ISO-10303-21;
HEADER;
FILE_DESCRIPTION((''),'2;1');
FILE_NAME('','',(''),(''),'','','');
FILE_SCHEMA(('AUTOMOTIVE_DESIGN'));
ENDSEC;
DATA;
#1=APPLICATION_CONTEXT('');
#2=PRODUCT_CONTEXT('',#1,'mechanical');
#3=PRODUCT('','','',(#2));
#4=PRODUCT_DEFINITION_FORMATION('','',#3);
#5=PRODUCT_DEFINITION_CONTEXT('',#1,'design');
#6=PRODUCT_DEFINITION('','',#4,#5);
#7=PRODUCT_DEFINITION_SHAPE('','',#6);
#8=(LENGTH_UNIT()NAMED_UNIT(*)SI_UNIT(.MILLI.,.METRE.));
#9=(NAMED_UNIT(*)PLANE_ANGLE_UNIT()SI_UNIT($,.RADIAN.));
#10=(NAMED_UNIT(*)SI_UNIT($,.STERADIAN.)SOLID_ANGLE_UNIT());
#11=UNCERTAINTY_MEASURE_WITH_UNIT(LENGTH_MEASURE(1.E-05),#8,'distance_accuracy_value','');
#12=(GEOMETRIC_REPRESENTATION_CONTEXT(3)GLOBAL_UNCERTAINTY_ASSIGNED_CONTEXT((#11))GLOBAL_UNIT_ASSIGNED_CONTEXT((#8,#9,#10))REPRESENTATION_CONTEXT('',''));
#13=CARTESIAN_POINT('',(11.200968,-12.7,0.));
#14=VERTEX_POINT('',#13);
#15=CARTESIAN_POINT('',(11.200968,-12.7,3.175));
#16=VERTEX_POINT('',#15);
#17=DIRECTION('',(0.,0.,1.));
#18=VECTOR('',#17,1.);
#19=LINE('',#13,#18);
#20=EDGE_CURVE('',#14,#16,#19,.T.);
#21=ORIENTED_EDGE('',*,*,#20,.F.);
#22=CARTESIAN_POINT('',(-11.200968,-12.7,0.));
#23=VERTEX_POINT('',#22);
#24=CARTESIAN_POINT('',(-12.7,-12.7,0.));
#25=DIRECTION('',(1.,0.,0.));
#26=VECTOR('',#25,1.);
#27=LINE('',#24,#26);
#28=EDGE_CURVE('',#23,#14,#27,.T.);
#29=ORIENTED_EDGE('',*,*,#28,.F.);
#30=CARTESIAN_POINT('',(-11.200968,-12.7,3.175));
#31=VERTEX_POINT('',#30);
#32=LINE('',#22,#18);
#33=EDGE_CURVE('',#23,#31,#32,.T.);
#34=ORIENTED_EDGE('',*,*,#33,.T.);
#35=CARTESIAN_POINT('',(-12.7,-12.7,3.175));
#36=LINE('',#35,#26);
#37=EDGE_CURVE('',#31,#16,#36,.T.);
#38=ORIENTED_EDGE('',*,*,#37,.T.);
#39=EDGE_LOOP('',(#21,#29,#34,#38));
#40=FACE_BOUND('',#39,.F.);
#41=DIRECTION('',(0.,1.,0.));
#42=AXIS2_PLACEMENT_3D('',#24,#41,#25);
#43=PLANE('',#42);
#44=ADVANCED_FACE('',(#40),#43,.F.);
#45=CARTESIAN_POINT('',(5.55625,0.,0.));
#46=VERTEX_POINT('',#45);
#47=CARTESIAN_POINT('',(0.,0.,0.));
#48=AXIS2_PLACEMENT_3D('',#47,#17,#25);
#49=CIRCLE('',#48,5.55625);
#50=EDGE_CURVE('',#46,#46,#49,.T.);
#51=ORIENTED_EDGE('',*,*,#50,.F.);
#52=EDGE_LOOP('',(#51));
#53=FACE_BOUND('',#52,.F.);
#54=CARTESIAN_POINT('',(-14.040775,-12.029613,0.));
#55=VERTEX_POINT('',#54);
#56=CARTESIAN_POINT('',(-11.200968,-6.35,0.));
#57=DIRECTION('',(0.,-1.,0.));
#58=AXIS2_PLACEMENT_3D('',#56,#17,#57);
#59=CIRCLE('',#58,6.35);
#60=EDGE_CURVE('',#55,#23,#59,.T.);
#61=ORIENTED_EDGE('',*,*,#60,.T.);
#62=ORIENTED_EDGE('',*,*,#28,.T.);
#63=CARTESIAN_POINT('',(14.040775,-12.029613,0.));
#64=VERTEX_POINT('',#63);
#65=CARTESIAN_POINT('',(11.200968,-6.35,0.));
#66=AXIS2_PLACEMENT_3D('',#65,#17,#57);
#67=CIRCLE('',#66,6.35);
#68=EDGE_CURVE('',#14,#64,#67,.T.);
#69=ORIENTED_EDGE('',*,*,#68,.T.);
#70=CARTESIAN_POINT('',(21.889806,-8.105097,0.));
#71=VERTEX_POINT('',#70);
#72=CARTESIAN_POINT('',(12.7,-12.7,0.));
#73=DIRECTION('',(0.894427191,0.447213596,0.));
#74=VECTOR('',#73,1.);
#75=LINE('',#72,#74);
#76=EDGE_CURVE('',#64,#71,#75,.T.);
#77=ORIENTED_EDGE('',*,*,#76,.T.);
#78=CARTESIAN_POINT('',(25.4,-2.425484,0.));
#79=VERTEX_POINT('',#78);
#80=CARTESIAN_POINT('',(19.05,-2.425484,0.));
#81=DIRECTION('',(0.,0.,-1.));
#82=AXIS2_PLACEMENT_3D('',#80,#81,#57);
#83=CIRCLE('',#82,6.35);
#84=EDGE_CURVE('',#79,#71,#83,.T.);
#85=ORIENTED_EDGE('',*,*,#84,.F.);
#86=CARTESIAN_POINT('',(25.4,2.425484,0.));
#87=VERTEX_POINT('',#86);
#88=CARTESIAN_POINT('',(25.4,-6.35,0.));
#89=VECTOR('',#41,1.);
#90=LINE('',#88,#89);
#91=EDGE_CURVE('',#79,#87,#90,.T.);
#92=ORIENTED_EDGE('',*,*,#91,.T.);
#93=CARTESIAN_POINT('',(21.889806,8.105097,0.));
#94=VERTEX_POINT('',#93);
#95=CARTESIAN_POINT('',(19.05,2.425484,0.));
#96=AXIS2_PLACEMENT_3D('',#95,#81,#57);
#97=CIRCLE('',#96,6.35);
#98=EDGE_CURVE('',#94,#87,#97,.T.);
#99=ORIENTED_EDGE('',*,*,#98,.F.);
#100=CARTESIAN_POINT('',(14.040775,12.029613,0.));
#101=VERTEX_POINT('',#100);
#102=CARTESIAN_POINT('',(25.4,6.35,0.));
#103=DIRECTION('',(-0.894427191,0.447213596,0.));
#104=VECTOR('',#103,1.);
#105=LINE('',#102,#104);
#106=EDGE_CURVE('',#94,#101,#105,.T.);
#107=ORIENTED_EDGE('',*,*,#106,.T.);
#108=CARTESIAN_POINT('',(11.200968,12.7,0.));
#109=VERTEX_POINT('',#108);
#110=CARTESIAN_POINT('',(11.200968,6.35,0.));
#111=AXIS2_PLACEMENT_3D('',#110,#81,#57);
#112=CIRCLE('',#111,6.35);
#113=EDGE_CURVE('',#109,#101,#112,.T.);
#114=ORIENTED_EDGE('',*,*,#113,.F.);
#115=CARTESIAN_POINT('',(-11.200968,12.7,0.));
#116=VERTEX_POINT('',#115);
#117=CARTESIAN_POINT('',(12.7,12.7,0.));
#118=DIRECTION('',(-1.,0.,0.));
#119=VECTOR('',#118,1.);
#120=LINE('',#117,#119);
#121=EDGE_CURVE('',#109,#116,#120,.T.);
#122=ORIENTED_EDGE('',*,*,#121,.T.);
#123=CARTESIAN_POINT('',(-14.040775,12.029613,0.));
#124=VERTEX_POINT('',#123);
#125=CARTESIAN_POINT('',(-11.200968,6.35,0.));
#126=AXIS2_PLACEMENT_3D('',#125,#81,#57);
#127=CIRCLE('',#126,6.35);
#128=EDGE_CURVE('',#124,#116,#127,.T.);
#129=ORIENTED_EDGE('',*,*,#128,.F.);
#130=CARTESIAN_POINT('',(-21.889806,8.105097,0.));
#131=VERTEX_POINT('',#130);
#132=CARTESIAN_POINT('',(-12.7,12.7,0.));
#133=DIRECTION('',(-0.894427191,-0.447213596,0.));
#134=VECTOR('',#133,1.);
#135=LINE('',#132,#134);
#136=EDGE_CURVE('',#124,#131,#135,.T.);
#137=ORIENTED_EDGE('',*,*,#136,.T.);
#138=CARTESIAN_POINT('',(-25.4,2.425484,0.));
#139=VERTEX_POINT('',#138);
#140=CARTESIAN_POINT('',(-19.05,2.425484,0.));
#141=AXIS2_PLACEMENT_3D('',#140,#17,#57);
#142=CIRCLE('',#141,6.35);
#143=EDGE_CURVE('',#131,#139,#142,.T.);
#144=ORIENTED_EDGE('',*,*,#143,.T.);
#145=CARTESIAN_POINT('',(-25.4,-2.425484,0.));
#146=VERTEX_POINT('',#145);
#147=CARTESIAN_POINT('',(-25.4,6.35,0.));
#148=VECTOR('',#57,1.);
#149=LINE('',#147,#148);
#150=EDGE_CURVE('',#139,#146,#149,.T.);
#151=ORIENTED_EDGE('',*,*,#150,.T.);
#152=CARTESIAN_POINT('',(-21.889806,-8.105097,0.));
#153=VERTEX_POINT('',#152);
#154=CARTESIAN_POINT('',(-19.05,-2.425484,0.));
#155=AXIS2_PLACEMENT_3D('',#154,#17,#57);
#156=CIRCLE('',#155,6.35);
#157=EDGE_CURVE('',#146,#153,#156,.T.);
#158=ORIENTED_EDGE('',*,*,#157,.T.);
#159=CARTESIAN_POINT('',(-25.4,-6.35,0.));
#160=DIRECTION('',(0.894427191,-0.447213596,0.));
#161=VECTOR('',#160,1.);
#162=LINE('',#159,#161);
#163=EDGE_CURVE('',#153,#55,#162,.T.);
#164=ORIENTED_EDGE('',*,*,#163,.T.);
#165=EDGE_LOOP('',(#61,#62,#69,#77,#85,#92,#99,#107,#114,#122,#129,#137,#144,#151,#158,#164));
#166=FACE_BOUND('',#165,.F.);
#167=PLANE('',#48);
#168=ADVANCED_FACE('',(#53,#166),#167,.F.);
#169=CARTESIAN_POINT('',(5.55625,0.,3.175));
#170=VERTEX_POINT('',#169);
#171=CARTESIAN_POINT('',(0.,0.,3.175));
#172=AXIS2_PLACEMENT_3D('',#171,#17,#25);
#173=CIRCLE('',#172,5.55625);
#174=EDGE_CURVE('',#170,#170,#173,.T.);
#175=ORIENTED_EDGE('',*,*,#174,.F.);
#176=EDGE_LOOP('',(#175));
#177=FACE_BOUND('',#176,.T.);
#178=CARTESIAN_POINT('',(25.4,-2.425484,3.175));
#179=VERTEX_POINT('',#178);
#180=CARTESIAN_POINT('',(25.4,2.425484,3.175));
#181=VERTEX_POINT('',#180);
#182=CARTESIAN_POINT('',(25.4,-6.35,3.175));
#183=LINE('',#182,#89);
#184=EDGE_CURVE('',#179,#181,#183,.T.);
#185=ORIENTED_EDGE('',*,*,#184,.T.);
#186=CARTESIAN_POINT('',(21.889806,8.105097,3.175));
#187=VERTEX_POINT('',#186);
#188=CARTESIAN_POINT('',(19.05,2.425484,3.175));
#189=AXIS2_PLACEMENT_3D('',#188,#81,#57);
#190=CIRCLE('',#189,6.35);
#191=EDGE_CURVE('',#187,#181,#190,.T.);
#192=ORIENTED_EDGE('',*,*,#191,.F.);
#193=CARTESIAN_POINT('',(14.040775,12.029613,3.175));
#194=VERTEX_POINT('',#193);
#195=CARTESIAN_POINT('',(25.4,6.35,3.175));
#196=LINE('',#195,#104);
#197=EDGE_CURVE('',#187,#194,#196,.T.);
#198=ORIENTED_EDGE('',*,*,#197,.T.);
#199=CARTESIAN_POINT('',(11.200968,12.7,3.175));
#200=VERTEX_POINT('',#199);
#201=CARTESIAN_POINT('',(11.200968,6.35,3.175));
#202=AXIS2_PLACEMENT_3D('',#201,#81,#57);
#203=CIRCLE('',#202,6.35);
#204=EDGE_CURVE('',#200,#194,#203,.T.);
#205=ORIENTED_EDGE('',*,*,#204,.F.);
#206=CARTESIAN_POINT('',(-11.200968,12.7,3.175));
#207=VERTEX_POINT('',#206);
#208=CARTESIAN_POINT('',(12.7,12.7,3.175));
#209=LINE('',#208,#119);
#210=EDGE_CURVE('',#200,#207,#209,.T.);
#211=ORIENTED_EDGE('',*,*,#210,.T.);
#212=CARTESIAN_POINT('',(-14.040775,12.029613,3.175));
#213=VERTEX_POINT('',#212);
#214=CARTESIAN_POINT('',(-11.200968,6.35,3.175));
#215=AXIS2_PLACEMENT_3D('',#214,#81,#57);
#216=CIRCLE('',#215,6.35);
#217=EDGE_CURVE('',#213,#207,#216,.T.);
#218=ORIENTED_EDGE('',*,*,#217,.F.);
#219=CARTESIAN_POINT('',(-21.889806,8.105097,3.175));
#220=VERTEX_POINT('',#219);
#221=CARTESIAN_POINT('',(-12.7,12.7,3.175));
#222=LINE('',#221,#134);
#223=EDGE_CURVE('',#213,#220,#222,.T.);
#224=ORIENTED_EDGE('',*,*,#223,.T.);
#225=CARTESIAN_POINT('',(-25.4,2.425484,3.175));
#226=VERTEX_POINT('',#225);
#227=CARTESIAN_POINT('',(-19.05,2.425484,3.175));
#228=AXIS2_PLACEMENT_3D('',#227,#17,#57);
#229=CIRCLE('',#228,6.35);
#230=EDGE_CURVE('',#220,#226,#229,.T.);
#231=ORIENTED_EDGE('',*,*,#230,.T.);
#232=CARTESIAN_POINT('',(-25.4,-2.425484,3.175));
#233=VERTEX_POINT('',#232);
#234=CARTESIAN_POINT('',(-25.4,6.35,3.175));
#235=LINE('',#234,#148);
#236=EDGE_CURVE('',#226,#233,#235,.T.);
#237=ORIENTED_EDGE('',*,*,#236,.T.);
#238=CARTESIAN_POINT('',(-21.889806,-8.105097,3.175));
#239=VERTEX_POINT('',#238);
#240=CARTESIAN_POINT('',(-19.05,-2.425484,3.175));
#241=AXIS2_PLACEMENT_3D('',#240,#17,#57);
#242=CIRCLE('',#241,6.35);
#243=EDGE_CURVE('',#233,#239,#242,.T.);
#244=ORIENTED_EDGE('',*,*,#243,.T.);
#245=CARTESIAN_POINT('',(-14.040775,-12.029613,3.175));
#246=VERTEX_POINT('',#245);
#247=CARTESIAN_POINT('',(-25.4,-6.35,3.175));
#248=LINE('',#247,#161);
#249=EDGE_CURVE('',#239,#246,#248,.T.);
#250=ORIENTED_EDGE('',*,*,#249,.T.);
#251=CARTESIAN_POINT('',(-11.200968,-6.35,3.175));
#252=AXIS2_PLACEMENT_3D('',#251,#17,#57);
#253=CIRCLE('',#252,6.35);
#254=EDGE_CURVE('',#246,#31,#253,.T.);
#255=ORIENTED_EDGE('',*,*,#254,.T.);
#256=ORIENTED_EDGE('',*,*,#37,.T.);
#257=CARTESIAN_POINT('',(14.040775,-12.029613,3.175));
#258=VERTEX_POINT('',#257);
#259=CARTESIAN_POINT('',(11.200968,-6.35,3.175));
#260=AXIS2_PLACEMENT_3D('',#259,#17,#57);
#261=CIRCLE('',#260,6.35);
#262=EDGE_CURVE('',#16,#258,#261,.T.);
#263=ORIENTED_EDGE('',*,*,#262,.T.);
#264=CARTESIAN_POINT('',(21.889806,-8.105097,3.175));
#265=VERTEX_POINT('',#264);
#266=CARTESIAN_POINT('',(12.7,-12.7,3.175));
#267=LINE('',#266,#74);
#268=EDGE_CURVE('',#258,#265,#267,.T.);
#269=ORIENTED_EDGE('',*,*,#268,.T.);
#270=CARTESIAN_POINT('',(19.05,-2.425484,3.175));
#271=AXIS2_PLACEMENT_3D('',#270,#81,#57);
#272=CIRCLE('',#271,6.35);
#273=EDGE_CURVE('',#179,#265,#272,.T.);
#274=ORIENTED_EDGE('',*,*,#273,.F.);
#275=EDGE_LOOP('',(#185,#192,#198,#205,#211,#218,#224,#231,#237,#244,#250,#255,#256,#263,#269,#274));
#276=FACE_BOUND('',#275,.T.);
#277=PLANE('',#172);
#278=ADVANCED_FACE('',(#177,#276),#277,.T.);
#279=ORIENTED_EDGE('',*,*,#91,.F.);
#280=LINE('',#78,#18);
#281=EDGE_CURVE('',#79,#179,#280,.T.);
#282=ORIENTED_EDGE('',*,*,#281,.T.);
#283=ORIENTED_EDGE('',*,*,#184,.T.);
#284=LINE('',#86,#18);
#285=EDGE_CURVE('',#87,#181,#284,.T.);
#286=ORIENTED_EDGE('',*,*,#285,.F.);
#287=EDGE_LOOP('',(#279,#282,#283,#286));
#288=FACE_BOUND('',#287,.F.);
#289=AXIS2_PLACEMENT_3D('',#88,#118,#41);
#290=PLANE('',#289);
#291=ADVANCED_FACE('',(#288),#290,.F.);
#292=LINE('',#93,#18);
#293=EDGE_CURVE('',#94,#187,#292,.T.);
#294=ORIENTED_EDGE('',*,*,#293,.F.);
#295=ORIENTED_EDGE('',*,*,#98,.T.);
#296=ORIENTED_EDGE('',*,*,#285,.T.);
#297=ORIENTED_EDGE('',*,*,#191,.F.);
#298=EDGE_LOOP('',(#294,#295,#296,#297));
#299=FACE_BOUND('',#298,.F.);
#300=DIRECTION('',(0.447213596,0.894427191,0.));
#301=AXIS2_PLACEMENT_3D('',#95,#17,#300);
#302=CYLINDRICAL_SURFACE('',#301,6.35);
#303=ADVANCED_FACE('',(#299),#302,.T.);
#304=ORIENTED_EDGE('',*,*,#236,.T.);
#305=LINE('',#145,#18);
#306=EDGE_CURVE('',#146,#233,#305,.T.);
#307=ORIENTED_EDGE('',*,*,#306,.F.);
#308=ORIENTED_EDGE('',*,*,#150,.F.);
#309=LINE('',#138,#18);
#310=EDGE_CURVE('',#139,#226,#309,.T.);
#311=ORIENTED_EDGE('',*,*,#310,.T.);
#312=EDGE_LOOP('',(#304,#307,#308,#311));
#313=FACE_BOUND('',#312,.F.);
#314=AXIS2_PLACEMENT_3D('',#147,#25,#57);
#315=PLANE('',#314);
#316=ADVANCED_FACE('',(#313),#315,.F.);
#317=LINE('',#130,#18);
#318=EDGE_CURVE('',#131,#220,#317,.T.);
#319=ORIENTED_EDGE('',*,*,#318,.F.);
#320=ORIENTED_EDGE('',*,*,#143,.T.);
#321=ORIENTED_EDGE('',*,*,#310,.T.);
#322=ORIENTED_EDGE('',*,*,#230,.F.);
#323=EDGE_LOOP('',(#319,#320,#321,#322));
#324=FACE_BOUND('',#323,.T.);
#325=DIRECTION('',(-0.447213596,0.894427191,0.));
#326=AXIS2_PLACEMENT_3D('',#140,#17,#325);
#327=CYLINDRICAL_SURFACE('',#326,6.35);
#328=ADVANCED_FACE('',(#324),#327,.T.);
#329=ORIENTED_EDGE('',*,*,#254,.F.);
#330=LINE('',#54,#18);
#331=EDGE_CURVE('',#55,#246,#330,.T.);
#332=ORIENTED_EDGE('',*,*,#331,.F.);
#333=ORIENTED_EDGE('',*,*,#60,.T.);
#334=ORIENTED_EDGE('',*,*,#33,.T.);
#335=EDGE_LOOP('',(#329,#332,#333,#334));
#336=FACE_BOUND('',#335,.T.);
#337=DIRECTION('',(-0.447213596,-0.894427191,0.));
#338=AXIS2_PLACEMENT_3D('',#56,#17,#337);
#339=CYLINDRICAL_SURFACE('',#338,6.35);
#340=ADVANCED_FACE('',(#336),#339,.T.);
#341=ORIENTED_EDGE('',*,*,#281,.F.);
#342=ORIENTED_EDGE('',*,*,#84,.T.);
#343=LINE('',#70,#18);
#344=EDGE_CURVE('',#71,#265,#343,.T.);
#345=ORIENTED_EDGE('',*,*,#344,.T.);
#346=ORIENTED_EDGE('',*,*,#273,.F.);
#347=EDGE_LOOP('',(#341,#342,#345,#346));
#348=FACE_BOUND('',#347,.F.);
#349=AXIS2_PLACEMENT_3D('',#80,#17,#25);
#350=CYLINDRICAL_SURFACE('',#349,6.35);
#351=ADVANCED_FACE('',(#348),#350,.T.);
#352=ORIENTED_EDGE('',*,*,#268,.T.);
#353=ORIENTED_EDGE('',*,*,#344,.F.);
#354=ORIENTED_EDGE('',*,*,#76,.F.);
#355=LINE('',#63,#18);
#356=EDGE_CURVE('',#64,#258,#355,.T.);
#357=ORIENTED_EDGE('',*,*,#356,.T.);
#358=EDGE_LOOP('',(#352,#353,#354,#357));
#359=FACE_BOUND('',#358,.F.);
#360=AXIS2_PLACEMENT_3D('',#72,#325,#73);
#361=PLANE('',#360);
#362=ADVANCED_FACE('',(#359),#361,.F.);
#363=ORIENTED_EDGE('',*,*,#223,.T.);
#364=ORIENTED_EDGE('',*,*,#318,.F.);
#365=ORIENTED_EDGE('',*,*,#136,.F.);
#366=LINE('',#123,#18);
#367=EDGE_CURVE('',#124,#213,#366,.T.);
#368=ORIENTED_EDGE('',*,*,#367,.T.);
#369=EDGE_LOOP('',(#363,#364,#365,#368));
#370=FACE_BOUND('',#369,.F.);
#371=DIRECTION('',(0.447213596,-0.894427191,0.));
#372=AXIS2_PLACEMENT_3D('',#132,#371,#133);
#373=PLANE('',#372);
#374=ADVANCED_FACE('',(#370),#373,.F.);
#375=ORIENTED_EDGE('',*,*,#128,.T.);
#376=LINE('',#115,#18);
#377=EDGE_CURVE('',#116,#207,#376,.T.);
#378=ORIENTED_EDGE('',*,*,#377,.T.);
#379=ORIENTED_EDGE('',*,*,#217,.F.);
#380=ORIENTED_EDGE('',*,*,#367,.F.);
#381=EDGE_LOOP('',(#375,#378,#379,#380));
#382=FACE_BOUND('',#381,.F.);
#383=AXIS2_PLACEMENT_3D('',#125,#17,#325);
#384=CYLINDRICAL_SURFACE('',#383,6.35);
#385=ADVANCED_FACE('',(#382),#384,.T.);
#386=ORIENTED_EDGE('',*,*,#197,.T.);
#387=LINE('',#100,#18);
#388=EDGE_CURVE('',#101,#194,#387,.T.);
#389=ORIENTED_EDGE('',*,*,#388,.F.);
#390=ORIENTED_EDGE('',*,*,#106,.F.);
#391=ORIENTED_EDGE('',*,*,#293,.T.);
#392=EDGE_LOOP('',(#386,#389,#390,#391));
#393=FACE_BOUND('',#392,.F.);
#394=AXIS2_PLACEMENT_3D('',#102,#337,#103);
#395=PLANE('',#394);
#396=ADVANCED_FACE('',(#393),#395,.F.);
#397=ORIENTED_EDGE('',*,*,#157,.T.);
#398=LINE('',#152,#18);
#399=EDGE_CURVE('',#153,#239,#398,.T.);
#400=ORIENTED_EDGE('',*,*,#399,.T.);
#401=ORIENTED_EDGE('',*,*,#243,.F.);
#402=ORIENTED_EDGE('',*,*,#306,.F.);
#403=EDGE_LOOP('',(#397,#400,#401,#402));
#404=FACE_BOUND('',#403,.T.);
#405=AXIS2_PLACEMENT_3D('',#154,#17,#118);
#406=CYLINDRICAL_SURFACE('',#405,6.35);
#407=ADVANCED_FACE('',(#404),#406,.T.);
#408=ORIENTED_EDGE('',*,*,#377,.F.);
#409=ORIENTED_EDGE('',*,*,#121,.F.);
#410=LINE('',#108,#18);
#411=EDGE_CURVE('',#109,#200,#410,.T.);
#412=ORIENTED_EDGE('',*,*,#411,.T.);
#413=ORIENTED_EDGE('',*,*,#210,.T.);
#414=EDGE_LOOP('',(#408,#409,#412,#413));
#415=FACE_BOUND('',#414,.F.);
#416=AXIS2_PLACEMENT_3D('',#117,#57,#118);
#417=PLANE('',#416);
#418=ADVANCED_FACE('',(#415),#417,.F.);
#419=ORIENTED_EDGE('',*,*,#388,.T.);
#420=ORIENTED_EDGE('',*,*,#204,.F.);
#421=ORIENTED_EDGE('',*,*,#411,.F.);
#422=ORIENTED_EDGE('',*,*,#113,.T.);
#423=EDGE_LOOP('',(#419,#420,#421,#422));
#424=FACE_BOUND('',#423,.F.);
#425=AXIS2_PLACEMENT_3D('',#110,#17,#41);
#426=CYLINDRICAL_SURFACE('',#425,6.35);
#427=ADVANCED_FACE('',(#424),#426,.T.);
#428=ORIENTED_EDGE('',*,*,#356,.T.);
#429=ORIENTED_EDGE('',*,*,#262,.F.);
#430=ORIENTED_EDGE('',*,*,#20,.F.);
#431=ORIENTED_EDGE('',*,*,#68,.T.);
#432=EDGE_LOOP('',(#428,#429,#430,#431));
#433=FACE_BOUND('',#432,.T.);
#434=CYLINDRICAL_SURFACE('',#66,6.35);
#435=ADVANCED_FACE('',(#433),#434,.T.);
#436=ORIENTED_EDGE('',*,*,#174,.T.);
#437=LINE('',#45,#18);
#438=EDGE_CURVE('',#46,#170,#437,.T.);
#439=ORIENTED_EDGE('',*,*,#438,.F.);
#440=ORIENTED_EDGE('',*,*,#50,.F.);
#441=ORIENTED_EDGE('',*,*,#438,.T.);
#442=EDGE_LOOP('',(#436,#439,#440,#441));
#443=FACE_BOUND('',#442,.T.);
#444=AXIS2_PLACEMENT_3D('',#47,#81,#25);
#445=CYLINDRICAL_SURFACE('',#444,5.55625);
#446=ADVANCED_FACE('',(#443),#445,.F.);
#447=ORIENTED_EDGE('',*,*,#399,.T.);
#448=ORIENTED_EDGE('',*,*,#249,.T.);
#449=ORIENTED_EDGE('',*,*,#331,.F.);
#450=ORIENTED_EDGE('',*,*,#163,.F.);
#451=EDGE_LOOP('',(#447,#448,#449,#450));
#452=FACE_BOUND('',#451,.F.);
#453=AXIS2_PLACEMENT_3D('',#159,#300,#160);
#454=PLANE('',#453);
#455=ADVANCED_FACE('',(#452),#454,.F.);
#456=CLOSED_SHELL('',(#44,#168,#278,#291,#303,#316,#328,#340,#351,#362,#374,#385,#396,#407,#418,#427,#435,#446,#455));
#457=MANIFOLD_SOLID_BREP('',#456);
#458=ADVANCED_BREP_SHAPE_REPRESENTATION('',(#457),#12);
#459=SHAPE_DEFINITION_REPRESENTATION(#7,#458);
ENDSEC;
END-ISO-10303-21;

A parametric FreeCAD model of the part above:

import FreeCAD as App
import Part
import Sketcher
Q = App.Units.Quantity


def edges_at(feature, points):
    """Names of the edges that pass closest to the given points."""
    edges = feature.Shape.Edges
    near = lambda p: min(range(len(edges)), key=lambda i: edges[i].distToShape(Part.Vertex(*p))[0])
    return sorted({f"Edge{near(p) + 1}" for p in points})

doc = App.newDocument("Part")
body = doc.addObject("PartDesign::Body", "Body")

# Sketch on XY plane
sketch1 = body.newObject("Sketcher::SketchObject", "Sketch")
sketch1.AttachmentSupport = (doc.getObject("XY_Plane"), [""])
sketch1.MapMode = "FlatFace"
sketch1.addGeometry([
    Part.LineSegment(App.Vector(-13, 13, 0), App.Vector(-25, 6, 0)),  # 0
    Part.LineSegment(App.Vector(-25, 6, 0), App.Vector(-25, -6, 0)),  # 1
    Part.LineSegment(App.Vector(-25, -6, 0), App.Vector(-13, -13, 0)),  # 2
    Part.LineSegment(App.Vector(-13, -13, 0), App.Vector(13, -13, 0)),  # 3
    Part.LineSegment(App.Vector(13, -13, 0), App.Vector(25, -6, 0)),  # 4
    Part.LineSegment(App.Vector(25, -6, 0), App.Vector(25, 6, 0)),  # 5
    Part.LineSegment(App.Vector(25, 6, 0), App.Vector(13, 13, 0)),  # 6
    Part.LineSegment(App.Vector(13, 13, 0), App.Vector(-13, 13, 0)),  # 7
    Part.Circle(App.Vector(0, 0, 0), App.Vector(0, 0, 1), 6),  # 8
], False)
sketch1.addConstraint([
    Sketcher.Constraint("Coincident", 0, 2, 1, 1),
    Sketcher.Constraint("Coincident", 1, 2, 2, 1),
    Sketcher.Constraint("Coincident", 2, 2, 3, 1),
    Sketcher.Constraint("Coincident", 3, 2, 4, 1),
    Sketcher.Constraint("Coincident", 4, 2, 5, 1),
    Sketcher.Constraint("Coincident", 5, 2, 6, 1),
    Sketcher.Constraint("Coincident", 6, 2, 7, 1),
    Sketcher.Constraint("Coincident", 7, 2, 0, 1),
    Sketcher.Constraint("Vertical", 1),
    Sketcher.Constraint("Horizontal", 3),
    Sketcher.Constraint("Vertical", 5),
    Sketcher.Constraint("Horizontal", 7),
    Sketcher.Constraint("Coincident", 8, 3, -1, 1),
    Sketcher.Constraint("Symmetric", 0, 2, 4, 2, -1, 1),
    Sketcher.Constraint("Symmetric", 2, 2, 6, 2, -1, 1),
    Sketcher.Constraint("Parallel", 0, 4),
    Sketcher.Constraint("Parallel", 2, 6),
    Sketcher.Constraint("Horizontal", 1, 2, 4, 2),
    Sketcher.Constraint("Vertical", 3, 2, 6, 2),
    Sketcher.Constraint("DistanceX", 3, 1, 3, 2, Q("1 in")),
    Sketcher.Constraint("Diameter", 8, Q("0.4375 in")),
    Sketcher.Constraint("DistanceY", 1, 2, 1, 1, Q("0.5 in")),
    Sketcher.Constraint("DistanceX", 0, 2, -1, 1, Q("1 in")),
    Sketcher.Constraint("DistanceY", 3, 2, 6, 2, Q("1 in")),
])
pad1 = body.newObject("PartDesign::Pad", "Pad")
pad1.Profile = sketch1
pad1.Length = Q("0.125 in")
doc.recompute()

fillet = body.newObject("PartDesign::Fillet", "Fillet")
fillet.Base = (pad1, edges_at(pad1, [
    (-12.7, -12.7, 1.587),
    (12.7, -12.7, 1.587),
    (25.4, -6.35, 1.587),
    (25.4, 6.35, 1.587),
    (12.7, 12.7, 1.587),
    (-12.7, 12.7, 1.587),
    (-25.4, 6.35, 1.587),
    (-25.4, -6.35, 1.587),
]))
fillet.Radius = Q("0.25 in")

doc.recompute()
